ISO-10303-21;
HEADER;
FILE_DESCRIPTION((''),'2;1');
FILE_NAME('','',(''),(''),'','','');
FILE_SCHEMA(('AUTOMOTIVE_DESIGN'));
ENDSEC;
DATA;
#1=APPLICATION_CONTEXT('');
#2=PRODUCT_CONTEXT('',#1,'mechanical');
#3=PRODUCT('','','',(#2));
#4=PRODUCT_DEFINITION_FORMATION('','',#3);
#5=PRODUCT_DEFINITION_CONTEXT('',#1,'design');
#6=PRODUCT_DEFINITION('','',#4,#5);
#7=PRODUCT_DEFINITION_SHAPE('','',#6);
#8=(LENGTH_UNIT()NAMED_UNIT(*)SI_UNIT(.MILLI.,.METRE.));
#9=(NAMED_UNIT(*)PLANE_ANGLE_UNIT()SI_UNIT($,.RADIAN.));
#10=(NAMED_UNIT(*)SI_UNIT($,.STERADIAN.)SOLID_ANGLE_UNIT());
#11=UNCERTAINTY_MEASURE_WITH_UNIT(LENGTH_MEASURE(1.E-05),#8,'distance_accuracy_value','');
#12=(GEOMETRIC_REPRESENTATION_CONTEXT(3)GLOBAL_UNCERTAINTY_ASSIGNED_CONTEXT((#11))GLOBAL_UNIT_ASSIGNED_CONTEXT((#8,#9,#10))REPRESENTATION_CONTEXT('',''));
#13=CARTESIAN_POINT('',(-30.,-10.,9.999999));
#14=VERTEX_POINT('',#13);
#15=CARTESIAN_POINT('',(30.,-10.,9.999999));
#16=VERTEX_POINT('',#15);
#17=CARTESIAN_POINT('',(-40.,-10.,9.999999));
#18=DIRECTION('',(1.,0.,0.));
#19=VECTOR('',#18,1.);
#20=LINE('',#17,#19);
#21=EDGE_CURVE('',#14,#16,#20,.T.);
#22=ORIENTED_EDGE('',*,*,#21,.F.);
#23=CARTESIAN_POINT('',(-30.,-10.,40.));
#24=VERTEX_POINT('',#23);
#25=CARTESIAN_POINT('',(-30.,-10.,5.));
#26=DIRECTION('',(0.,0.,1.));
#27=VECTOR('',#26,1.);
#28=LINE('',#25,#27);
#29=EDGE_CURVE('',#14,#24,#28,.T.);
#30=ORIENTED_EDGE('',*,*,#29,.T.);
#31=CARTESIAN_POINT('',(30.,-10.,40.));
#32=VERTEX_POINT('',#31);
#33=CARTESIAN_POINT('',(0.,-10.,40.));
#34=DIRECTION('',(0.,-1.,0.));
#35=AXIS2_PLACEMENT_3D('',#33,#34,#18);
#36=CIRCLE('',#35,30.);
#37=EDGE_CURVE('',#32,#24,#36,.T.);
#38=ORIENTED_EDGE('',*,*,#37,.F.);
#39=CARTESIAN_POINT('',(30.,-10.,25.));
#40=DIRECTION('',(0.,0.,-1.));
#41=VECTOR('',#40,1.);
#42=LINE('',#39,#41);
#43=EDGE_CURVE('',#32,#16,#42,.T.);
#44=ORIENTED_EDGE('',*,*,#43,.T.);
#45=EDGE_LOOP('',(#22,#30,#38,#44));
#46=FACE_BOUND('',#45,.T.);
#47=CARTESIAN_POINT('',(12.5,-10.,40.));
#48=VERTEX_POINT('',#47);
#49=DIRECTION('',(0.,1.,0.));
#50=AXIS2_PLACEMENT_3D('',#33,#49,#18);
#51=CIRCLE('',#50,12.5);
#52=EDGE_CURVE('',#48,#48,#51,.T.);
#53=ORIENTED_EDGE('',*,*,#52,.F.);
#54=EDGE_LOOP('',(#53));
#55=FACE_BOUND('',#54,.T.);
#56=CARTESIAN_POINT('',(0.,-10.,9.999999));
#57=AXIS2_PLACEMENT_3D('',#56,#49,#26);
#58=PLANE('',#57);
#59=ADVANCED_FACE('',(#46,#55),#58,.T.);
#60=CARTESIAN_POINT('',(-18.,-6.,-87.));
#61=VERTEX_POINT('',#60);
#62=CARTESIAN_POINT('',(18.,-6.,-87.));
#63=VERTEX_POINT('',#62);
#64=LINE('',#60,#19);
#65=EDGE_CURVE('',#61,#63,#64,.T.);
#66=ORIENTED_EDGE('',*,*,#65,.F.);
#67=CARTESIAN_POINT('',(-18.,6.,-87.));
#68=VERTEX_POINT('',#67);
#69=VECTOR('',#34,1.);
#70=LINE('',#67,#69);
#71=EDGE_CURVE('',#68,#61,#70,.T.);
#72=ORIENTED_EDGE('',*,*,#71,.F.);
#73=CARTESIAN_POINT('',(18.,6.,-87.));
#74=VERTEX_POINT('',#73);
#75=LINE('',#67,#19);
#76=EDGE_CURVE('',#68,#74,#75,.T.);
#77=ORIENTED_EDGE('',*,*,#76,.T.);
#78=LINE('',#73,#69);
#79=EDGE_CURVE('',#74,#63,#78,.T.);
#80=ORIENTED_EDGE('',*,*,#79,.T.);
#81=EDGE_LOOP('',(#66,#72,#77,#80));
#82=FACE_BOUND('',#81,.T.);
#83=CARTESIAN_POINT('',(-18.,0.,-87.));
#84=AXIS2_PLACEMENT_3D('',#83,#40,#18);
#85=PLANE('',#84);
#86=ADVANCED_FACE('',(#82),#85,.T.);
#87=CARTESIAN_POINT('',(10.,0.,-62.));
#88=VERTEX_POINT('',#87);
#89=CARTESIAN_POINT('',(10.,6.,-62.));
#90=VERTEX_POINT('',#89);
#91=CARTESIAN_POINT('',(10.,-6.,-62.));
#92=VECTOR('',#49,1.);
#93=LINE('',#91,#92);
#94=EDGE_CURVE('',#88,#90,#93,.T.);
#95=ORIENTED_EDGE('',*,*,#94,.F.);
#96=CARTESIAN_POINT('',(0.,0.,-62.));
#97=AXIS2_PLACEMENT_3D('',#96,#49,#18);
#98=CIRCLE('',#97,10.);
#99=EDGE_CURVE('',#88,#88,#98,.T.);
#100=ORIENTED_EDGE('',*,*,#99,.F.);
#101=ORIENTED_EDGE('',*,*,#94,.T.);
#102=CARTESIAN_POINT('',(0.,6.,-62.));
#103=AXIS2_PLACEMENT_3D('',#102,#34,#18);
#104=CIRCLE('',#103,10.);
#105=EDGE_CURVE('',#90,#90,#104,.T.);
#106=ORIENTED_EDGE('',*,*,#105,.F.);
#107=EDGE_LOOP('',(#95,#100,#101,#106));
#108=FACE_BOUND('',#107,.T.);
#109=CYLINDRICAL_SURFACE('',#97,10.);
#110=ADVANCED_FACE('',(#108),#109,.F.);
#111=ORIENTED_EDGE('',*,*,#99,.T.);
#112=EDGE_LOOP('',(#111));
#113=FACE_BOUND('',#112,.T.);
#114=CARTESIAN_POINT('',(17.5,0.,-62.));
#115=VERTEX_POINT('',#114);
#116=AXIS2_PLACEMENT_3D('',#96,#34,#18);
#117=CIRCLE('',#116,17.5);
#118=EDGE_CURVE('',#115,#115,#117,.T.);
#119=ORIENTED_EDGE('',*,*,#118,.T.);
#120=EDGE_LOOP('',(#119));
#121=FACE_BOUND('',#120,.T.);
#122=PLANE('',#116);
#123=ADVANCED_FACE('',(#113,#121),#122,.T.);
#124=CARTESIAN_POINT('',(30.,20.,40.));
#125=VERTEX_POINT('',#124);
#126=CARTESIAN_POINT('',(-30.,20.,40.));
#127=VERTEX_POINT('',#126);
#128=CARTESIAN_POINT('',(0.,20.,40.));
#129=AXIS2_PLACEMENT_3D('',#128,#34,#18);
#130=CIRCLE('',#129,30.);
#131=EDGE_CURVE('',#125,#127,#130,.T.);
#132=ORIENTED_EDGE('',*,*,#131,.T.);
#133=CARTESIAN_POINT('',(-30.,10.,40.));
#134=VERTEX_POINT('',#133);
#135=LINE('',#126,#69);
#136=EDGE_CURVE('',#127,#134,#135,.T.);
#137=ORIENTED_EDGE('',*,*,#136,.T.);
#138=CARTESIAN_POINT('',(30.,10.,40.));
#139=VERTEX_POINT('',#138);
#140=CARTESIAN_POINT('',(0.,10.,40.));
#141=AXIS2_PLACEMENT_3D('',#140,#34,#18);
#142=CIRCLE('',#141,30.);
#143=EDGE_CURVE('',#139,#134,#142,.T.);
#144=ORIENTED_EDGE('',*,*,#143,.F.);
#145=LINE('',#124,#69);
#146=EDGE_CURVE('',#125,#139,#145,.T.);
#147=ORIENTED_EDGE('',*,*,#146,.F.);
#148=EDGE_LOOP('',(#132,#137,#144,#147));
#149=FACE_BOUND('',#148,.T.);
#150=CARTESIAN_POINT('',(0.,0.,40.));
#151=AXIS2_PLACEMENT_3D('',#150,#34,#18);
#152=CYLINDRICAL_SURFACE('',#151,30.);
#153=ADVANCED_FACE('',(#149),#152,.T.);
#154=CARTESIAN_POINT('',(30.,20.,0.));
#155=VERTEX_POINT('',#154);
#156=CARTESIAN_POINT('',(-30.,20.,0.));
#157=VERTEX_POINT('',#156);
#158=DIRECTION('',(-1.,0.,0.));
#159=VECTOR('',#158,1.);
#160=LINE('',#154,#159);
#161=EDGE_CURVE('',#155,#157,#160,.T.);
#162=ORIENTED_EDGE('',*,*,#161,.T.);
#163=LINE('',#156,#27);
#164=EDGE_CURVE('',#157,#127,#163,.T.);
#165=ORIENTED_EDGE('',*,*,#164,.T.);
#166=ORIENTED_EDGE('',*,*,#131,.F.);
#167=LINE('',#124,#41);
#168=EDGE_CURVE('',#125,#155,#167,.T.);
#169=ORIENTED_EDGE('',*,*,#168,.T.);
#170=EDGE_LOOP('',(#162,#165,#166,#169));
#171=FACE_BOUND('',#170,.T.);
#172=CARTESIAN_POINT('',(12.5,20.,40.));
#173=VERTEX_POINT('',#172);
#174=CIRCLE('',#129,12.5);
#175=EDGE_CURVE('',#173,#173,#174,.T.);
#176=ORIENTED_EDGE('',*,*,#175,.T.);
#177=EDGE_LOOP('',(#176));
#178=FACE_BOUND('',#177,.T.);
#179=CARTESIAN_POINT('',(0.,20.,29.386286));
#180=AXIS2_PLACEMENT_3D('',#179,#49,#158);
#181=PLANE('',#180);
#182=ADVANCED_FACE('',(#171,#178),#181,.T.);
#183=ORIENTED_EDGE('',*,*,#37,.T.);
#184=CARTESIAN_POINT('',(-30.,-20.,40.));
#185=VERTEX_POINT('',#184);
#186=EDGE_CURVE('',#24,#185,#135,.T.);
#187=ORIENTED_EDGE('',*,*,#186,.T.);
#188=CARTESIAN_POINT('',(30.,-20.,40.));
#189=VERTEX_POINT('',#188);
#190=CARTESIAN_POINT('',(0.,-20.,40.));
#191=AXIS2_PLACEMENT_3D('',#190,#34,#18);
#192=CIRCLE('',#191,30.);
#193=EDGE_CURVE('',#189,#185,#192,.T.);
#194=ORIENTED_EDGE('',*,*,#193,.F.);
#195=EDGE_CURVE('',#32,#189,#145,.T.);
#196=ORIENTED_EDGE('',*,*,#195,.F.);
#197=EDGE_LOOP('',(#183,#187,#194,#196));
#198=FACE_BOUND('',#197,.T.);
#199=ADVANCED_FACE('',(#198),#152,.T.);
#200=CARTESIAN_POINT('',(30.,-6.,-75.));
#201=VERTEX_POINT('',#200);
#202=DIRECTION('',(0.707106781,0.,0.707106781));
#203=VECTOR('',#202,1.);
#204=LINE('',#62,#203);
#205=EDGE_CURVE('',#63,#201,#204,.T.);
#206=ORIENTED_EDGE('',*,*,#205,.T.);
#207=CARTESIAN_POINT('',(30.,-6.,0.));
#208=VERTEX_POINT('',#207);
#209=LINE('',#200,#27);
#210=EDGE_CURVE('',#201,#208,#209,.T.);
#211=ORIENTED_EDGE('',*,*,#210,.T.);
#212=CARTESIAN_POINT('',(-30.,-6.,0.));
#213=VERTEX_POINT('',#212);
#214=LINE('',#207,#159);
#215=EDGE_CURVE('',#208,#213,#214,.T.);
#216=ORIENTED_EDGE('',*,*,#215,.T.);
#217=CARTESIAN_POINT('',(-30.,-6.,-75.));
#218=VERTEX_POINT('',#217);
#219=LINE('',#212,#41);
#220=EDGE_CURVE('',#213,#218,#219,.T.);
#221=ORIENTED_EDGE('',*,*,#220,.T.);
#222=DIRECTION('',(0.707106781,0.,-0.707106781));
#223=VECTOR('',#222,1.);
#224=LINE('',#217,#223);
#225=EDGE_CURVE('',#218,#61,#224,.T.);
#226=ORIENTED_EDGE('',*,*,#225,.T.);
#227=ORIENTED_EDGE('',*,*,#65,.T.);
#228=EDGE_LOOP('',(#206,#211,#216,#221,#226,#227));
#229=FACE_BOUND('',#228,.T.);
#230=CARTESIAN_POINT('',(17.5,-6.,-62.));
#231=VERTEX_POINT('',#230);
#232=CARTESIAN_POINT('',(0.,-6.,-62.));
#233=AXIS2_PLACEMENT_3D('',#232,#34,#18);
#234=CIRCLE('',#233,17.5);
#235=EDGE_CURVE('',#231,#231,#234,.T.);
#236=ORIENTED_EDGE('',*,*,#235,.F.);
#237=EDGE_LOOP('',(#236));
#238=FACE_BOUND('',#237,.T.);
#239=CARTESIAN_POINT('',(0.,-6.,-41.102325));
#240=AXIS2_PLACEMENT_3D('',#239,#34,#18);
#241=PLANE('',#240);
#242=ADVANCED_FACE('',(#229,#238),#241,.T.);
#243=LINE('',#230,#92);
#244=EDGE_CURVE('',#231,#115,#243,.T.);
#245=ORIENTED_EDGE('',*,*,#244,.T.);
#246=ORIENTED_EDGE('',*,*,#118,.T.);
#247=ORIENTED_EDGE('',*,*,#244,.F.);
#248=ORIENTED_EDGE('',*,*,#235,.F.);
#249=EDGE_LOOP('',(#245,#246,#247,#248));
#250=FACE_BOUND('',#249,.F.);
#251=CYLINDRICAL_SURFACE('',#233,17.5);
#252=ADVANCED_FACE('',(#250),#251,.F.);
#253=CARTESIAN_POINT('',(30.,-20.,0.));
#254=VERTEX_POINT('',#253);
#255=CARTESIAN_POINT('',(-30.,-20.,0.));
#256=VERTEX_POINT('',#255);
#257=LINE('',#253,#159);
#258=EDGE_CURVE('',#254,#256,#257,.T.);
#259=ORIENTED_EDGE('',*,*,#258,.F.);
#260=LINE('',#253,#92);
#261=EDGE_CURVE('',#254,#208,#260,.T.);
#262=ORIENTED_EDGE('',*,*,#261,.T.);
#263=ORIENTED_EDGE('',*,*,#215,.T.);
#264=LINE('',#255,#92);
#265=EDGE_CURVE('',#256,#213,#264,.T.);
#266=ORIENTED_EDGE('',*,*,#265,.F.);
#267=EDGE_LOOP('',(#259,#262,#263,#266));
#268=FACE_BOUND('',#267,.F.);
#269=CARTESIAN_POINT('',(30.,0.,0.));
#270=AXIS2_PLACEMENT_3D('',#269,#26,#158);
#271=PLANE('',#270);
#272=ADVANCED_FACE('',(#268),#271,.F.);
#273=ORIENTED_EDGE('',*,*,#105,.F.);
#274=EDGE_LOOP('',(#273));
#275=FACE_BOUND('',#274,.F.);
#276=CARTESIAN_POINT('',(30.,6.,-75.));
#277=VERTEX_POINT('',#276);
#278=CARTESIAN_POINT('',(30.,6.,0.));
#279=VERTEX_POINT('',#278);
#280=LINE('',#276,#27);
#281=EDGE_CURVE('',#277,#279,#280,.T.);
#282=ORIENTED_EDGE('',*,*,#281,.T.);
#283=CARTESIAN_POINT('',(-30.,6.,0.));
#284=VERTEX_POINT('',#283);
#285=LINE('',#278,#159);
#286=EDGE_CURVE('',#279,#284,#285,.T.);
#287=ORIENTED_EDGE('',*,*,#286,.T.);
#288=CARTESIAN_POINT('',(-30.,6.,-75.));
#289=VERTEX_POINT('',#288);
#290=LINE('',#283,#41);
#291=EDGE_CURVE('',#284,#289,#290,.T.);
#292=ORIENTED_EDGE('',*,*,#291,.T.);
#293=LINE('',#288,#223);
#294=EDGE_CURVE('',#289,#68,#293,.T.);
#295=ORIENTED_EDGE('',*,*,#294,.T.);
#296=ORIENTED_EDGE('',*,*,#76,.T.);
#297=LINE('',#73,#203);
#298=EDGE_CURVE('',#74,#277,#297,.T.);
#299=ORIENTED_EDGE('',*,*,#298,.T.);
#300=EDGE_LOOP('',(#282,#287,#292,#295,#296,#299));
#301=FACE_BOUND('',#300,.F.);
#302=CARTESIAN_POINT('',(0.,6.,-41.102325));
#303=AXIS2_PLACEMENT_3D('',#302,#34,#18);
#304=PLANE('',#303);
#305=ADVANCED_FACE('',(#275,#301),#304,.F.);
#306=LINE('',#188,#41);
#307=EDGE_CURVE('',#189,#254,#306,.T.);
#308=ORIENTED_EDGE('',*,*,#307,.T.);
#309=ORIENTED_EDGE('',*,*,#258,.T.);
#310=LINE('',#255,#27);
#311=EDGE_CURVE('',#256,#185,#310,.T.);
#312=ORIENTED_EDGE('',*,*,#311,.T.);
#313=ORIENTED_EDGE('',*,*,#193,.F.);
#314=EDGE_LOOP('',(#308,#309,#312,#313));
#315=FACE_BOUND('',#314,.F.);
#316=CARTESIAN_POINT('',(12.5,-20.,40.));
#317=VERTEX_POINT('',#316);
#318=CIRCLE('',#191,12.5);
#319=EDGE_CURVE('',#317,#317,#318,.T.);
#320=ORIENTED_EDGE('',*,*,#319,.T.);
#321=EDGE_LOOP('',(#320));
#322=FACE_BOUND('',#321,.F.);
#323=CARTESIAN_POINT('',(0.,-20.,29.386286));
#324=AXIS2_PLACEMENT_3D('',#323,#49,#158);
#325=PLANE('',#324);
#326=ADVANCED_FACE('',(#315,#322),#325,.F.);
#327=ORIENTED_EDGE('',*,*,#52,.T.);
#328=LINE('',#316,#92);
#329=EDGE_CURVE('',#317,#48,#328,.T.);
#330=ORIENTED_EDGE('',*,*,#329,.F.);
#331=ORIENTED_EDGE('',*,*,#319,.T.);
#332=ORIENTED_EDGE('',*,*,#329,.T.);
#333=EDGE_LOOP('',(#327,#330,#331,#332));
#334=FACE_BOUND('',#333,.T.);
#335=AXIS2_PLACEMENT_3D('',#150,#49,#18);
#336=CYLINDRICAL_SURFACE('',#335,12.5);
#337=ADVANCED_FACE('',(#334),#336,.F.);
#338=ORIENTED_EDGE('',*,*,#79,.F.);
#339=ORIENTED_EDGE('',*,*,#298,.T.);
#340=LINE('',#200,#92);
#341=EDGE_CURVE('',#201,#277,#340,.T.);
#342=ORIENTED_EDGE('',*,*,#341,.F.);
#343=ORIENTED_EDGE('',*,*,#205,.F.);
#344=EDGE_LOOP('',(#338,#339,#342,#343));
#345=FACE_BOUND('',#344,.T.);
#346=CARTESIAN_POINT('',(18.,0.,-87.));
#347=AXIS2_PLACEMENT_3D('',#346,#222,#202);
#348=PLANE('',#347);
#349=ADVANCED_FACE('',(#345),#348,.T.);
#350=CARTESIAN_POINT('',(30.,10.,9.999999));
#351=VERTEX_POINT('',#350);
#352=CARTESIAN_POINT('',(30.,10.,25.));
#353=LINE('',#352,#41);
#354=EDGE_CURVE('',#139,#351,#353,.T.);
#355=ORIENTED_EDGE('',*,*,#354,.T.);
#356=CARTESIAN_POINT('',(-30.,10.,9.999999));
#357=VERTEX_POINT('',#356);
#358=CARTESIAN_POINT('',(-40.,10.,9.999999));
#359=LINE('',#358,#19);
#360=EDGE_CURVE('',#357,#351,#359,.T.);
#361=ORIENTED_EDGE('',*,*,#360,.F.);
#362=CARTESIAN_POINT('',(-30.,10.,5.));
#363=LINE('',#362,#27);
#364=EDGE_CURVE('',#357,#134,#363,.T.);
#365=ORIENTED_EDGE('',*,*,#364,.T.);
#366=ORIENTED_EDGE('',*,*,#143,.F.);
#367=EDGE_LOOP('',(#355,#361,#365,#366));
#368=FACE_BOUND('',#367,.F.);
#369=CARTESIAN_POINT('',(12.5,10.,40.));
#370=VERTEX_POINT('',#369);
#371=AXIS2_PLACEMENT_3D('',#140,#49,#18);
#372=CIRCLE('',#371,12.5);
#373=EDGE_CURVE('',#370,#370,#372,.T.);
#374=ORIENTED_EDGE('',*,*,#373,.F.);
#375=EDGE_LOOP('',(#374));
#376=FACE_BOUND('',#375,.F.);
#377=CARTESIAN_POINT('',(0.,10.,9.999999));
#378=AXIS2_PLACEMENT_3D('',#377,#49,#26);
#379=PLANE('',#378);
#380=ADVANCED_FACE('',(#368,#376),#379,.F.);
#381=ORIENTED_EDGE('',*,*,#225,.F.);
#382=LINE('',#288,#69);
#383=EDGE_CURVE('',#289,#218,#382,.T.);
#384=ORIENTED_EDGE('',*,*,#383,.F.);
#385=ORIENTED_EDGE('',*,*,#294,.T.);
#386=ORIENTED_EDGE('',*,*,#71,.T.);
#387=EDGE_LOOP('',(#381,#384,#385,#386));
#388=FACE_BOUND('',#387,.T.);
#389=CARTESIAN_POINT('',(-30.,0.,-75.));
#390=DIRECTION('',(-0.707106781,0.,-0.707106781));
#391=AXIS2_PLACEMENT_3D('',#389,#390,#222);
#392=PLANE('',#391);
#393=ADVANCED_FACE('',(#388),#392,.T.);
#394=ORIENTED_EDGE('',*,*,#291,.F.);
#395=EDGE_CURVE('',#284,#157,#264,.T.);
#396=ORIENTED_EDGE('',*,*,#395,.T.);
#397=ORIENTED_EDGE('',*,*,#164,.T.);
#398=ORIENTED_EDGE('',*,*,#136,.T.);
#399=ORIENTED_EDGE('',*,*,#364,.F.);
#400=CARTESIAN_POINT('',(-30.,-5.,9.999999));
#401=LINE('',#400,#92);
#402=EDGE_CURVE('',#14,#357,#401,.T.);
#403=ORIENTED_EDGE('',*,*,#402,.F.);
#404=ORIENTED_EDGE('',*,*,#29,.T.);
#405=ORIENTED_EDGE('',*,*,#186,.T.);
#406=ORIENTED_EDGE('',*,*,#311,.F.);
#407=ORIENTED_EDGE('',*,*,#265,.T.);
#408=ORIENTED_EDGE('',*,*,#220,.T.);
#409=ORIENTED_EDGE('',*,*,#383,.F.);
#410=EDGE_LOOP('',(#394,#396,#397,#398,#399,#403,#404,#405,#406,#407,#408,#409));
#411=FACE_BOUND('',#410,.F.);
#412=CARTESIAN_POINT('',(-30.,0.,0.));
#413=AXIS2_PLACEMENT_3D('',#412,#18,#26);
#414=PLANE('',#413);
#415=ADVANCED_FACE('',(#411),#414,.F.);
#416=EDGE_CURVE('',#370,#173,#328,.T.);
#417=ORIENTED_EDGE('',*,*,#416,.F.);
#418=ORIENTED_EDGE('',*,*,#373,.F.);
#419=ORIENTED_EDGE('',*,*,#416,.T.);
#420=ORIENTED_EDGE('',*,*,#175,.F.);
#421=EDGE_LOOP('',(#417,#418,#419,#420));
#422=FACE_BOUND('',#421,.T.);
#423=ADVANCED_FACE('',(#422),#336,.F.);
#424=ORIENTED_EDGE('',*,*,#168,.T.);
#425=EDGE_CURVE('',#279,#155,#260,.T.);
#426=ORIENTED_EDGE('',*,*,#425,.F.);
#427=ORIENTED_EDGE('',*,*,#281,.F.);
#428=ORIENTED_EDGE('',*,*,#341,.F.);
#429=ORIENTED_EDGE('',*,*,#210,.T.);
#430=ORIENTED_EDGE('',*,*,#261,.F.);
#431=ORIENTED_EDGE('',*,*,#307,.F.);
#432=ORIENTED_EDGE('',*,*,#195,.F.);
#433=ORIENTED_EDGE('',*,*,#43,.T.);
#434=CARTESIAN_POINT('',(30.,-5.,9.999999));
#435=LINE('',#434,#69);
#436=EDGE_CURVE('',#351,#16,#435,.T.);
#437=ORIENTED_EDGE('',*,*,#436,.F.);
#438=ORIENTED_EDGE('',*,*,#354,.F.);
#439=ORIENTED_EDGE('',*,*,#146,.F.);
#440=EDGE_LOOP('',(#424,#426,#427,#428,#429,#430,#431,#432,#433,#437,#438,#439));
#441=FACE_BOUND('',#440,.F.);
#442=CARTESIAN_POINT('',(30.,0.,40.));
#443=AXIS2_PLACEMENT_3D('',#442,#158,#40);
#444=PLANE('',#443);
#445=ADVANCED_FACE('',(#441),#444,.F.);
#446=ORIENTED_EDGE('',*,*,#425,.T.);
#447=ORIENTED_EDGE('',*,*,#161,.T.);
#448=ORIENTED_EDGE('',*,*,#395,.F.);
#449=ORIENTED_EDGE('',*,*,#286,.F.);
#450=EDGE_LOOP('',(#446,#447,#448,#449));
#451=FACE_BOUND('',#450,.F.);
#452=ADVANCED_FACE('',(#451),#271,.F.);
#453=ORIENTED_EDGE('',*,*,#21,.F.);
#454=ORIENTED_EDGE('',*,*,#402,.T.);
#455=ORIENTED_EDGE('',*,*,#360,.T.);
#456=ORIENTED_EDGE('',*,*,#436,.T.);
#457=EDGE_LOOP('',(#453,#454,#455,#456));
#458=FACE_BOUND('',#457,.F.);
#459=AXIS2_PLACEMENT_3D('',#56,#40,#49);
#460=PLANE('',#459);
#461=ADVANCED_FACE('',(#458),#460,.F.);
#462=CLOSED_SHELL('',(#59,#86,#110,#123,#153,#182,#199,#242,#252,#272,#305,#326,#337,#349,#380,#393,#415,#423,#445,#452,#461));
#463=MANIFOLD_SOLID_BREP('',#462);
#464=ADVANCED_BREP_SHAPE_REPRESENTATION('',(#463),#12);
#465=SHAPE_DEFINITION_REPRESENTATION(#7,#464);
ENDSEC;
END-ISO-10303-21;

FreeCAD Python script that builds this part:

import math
import FreeCAD as App
import Part
import Sketcher


def add_polygon(sketch, points):
    """Adds a closed chain of lines whose ends are joined by coincident constraints."""
    first, n = sketch.GeometryCount, len(points)
    for a, b in zip(points, points[1:] + points[:1]):
        sketch.addGeometry(Part.LineSegment(App.Vector(*a, 0), App.Vector(*b, 0)), False)
    for i in range(n):
        sketch.addConstraint(Sketcher.Constraint("Coincident", first + i, 2, first + (i + 1) % n, 1))

doc = App.newDocument("Part")
body = doc.addObject("PartDesign::Body", "Body")

# Sketch on YZ plane
sketch1 = body.newObject("Sketcher::SketchObject", "Sketch")
sketch1.AttachmentSupport = (doc.getObject("YZ_Plane"), [""])
sketch1.MapMode = "FlatFace"
add_polygon(sketch1, [(-10, 90.939506), (-10, 9.999999), (10, 9.999999), (10, 90.939506)])  # lines 0-3
sketch1.addConstraint([
    Sketcher.Constraint("Vertical", 0),
    Sketcher.Constraint("Horizontal", 1),
    Sketcher.Constraint("Vertical", 2),
    Sketcher.Constraint("Horizontal", 3),
    Sketcher.Constraint("DistanceX", 1, 1, 1, 2, 20.0),
    Sketcher.Constraint("DistanceX", 0, 2, -1, 1, 10.0),
    Sketcher.Constraint("DistanceY", -1, 1, 0, 2, 9.999999),
    Sketcher.Constraint("DistanceY", 0, 2, 0, 1, 80.939507),
])
pad1 = body.newObject("PartDesign::Pad", "Pad")
pad1.Profile = sketch1
pad1.Length = 80
pad1.Midplane = True
body2 = doc.addObject("PartDesign::Body", "Body001")

# Sketch on XZ plane
sketch2 = body2.newObject("Sketcher::SketchObject", "Sketch001")
sketch2.AttachmentSupport = (doc.getObject("XZ_Plane001"), [""])
sketch2.MapMode = "FlatFace"
sketch2.addGeometry([
    Part.LineSegment(App.Vector(30, 0, 0), App.Vector(30, 40, 0)),  # 0
    Part.ArcOfCircle(Part.Circle(App.Vector(0, 40, 0), App.Vector(0, 0, 1), 30), math.radians(0), math.radians(180)),  # 1
    Part.LineSegment(App.Vector(-30, 40, 0), App.Vector(-30, 0, 0)),  # 2
    Part.LineSegment(App.Vector(-30, 0, 0), App.Vector(30, 0, 0)),  # 3
    Part.Circle(App.Vector(0, 40, 0), App.Vector(0, 0, 1), 12.5),  # 4
], False)
sketch2.addConstraint([
    Sketcher.Constraint("Tangent", 0, 2, 1, 1),
    Sketcher.Constraint("Tangent", 1, 2, 2, 1),
    Sketcher.Constraint("Coincident", 2, 2, 3, 1),
    Sketcher.Constraint("Coincident", 3, 2, 0, 1),
    Sketcher.Constraint("Vertical", 0),
    Sketcher.Constraint("Vertical", 2),
    Sketcher.Constraint("Horizontal", 3),
    Sketcher.Constraint("Coincident", 4, 3, 1, 3),
    Sketcher.Constraint("Symmetric", 2, 2, 3, 2, -1, 1),
    Sketcher.Constraint("Diameter", 4, 25.0),
    Sketcher.Constraint("Radius", 1, 30.0),
    Sketcher.Constraint("DistanceY", 0, 1, 0, 2, 40.0),
])
pad2 = body2.newObject("PartDesign::Pad", "Pad001")
pad2.Profile = sketch2
pad2.Length = 40
pad2.Midplane = True
doc.recompute()

boolean = body2.newObject("PartDesign::Boolean", "Boolean")
boolean.Type = "Cut"
boolean.addObjects([body])
body3 = doc.addObject("PartDesign::Body", "Body002")

# Sketch on XZ plane
sketch3 = body3.newObject("Sketcher::SketchObject", "Sketch002")
sketch3.AttachmentSupport = (doc.getObject("XZ_Plane002"), [""])
sketch3.MapMode = "FlatFace"
add_polygon(sketch3, [(-30, 0), (-30, -75), (-18, -87), (18, -87), (30, -75), (30, 0)])  # lines 0-5
sketch3.addGeometry(Part.Circle(App.Vector(0, -62, 0), App.Vector(0, 0, 1), 10), False)  # 6
sketch3.addConstraint([
    Sketcher.Constraint("Vertical", 0),
    Sketcher.Constraint("Horizontal", 2),
    Sketcher.Constraint("Vertical", 4),
    Sketcher.Constraint("Horizontal", 5),
    Sketcher.Constraint("Symmetric", 4, 2, 5, 2, -1, 1),
    Sketcher.Constraint("PointOnObject", 6, 3, -2),
    Sketcher.Constraint("Perpendicular", 1, 3),
    Sketcher.Constraint("Horizontal", 0, 2, 3, 2),
    Sketcher.Constraint("Equal", 1, 3),
    Sketcher.Constraint("Diameter", 6, 20.0),
    Sketcher.Constraint("DistanceX", 2, 1, 2, 2, 36.0),
    Sketcher.Constraint("DistanceX", 5, 2, 5, 1, 60.0),
    Sketcher.Constraint("DistanceY", 0, 2, 0, 1, 75.0),
    Sketcher.Constraint("DistanceY", 6, 3, -1, 1, 62.0),
])
pad3 = body3.newObject("PartDesign::Pad", "Pad002")
pad3.Profile = sketch3
pad3.Length = 12
pad3.Midplane = True

# Sketch on XZ plane
sketch4 = body3.newObject("Sketcher::SketchObject", "Sketch003")
sketch4.AttachmentSupport = (doc.getObject("XZ_Plane002"), [""])
sketch4.MapMode = "FlatFace"
sketch4.AttachmentOffset = App.Placement(App.Vector(0, 0, 6), App.Rotation())
sketch4.addGeometry(Part.Circle(App.Vector(0, -62, 0), App.Vector(0, 0, 1), 17.5), False)
sketch4.addConstraint([
    Sketcher.Constraint("PointOnObject", 0, 3, -2),
    Sketcher.Constraint("Diameter", 0, 35.0),
    Sketcher.Constraint("DistanceY", 0, 3, -1, 1, 62.0),
])
pocket1 = body3.newObject("PartDesign::Pocket", "Pocket")
pocket1.Profile = sketch4
pocket1.Length = 6
doc.recompute()

boolean2 = body3.newObject("PartDesign::Boolean", "Boolean001")
boolean2.Type = "Fuse"
boolean2.addObjects([body2])

doc.recompute()
